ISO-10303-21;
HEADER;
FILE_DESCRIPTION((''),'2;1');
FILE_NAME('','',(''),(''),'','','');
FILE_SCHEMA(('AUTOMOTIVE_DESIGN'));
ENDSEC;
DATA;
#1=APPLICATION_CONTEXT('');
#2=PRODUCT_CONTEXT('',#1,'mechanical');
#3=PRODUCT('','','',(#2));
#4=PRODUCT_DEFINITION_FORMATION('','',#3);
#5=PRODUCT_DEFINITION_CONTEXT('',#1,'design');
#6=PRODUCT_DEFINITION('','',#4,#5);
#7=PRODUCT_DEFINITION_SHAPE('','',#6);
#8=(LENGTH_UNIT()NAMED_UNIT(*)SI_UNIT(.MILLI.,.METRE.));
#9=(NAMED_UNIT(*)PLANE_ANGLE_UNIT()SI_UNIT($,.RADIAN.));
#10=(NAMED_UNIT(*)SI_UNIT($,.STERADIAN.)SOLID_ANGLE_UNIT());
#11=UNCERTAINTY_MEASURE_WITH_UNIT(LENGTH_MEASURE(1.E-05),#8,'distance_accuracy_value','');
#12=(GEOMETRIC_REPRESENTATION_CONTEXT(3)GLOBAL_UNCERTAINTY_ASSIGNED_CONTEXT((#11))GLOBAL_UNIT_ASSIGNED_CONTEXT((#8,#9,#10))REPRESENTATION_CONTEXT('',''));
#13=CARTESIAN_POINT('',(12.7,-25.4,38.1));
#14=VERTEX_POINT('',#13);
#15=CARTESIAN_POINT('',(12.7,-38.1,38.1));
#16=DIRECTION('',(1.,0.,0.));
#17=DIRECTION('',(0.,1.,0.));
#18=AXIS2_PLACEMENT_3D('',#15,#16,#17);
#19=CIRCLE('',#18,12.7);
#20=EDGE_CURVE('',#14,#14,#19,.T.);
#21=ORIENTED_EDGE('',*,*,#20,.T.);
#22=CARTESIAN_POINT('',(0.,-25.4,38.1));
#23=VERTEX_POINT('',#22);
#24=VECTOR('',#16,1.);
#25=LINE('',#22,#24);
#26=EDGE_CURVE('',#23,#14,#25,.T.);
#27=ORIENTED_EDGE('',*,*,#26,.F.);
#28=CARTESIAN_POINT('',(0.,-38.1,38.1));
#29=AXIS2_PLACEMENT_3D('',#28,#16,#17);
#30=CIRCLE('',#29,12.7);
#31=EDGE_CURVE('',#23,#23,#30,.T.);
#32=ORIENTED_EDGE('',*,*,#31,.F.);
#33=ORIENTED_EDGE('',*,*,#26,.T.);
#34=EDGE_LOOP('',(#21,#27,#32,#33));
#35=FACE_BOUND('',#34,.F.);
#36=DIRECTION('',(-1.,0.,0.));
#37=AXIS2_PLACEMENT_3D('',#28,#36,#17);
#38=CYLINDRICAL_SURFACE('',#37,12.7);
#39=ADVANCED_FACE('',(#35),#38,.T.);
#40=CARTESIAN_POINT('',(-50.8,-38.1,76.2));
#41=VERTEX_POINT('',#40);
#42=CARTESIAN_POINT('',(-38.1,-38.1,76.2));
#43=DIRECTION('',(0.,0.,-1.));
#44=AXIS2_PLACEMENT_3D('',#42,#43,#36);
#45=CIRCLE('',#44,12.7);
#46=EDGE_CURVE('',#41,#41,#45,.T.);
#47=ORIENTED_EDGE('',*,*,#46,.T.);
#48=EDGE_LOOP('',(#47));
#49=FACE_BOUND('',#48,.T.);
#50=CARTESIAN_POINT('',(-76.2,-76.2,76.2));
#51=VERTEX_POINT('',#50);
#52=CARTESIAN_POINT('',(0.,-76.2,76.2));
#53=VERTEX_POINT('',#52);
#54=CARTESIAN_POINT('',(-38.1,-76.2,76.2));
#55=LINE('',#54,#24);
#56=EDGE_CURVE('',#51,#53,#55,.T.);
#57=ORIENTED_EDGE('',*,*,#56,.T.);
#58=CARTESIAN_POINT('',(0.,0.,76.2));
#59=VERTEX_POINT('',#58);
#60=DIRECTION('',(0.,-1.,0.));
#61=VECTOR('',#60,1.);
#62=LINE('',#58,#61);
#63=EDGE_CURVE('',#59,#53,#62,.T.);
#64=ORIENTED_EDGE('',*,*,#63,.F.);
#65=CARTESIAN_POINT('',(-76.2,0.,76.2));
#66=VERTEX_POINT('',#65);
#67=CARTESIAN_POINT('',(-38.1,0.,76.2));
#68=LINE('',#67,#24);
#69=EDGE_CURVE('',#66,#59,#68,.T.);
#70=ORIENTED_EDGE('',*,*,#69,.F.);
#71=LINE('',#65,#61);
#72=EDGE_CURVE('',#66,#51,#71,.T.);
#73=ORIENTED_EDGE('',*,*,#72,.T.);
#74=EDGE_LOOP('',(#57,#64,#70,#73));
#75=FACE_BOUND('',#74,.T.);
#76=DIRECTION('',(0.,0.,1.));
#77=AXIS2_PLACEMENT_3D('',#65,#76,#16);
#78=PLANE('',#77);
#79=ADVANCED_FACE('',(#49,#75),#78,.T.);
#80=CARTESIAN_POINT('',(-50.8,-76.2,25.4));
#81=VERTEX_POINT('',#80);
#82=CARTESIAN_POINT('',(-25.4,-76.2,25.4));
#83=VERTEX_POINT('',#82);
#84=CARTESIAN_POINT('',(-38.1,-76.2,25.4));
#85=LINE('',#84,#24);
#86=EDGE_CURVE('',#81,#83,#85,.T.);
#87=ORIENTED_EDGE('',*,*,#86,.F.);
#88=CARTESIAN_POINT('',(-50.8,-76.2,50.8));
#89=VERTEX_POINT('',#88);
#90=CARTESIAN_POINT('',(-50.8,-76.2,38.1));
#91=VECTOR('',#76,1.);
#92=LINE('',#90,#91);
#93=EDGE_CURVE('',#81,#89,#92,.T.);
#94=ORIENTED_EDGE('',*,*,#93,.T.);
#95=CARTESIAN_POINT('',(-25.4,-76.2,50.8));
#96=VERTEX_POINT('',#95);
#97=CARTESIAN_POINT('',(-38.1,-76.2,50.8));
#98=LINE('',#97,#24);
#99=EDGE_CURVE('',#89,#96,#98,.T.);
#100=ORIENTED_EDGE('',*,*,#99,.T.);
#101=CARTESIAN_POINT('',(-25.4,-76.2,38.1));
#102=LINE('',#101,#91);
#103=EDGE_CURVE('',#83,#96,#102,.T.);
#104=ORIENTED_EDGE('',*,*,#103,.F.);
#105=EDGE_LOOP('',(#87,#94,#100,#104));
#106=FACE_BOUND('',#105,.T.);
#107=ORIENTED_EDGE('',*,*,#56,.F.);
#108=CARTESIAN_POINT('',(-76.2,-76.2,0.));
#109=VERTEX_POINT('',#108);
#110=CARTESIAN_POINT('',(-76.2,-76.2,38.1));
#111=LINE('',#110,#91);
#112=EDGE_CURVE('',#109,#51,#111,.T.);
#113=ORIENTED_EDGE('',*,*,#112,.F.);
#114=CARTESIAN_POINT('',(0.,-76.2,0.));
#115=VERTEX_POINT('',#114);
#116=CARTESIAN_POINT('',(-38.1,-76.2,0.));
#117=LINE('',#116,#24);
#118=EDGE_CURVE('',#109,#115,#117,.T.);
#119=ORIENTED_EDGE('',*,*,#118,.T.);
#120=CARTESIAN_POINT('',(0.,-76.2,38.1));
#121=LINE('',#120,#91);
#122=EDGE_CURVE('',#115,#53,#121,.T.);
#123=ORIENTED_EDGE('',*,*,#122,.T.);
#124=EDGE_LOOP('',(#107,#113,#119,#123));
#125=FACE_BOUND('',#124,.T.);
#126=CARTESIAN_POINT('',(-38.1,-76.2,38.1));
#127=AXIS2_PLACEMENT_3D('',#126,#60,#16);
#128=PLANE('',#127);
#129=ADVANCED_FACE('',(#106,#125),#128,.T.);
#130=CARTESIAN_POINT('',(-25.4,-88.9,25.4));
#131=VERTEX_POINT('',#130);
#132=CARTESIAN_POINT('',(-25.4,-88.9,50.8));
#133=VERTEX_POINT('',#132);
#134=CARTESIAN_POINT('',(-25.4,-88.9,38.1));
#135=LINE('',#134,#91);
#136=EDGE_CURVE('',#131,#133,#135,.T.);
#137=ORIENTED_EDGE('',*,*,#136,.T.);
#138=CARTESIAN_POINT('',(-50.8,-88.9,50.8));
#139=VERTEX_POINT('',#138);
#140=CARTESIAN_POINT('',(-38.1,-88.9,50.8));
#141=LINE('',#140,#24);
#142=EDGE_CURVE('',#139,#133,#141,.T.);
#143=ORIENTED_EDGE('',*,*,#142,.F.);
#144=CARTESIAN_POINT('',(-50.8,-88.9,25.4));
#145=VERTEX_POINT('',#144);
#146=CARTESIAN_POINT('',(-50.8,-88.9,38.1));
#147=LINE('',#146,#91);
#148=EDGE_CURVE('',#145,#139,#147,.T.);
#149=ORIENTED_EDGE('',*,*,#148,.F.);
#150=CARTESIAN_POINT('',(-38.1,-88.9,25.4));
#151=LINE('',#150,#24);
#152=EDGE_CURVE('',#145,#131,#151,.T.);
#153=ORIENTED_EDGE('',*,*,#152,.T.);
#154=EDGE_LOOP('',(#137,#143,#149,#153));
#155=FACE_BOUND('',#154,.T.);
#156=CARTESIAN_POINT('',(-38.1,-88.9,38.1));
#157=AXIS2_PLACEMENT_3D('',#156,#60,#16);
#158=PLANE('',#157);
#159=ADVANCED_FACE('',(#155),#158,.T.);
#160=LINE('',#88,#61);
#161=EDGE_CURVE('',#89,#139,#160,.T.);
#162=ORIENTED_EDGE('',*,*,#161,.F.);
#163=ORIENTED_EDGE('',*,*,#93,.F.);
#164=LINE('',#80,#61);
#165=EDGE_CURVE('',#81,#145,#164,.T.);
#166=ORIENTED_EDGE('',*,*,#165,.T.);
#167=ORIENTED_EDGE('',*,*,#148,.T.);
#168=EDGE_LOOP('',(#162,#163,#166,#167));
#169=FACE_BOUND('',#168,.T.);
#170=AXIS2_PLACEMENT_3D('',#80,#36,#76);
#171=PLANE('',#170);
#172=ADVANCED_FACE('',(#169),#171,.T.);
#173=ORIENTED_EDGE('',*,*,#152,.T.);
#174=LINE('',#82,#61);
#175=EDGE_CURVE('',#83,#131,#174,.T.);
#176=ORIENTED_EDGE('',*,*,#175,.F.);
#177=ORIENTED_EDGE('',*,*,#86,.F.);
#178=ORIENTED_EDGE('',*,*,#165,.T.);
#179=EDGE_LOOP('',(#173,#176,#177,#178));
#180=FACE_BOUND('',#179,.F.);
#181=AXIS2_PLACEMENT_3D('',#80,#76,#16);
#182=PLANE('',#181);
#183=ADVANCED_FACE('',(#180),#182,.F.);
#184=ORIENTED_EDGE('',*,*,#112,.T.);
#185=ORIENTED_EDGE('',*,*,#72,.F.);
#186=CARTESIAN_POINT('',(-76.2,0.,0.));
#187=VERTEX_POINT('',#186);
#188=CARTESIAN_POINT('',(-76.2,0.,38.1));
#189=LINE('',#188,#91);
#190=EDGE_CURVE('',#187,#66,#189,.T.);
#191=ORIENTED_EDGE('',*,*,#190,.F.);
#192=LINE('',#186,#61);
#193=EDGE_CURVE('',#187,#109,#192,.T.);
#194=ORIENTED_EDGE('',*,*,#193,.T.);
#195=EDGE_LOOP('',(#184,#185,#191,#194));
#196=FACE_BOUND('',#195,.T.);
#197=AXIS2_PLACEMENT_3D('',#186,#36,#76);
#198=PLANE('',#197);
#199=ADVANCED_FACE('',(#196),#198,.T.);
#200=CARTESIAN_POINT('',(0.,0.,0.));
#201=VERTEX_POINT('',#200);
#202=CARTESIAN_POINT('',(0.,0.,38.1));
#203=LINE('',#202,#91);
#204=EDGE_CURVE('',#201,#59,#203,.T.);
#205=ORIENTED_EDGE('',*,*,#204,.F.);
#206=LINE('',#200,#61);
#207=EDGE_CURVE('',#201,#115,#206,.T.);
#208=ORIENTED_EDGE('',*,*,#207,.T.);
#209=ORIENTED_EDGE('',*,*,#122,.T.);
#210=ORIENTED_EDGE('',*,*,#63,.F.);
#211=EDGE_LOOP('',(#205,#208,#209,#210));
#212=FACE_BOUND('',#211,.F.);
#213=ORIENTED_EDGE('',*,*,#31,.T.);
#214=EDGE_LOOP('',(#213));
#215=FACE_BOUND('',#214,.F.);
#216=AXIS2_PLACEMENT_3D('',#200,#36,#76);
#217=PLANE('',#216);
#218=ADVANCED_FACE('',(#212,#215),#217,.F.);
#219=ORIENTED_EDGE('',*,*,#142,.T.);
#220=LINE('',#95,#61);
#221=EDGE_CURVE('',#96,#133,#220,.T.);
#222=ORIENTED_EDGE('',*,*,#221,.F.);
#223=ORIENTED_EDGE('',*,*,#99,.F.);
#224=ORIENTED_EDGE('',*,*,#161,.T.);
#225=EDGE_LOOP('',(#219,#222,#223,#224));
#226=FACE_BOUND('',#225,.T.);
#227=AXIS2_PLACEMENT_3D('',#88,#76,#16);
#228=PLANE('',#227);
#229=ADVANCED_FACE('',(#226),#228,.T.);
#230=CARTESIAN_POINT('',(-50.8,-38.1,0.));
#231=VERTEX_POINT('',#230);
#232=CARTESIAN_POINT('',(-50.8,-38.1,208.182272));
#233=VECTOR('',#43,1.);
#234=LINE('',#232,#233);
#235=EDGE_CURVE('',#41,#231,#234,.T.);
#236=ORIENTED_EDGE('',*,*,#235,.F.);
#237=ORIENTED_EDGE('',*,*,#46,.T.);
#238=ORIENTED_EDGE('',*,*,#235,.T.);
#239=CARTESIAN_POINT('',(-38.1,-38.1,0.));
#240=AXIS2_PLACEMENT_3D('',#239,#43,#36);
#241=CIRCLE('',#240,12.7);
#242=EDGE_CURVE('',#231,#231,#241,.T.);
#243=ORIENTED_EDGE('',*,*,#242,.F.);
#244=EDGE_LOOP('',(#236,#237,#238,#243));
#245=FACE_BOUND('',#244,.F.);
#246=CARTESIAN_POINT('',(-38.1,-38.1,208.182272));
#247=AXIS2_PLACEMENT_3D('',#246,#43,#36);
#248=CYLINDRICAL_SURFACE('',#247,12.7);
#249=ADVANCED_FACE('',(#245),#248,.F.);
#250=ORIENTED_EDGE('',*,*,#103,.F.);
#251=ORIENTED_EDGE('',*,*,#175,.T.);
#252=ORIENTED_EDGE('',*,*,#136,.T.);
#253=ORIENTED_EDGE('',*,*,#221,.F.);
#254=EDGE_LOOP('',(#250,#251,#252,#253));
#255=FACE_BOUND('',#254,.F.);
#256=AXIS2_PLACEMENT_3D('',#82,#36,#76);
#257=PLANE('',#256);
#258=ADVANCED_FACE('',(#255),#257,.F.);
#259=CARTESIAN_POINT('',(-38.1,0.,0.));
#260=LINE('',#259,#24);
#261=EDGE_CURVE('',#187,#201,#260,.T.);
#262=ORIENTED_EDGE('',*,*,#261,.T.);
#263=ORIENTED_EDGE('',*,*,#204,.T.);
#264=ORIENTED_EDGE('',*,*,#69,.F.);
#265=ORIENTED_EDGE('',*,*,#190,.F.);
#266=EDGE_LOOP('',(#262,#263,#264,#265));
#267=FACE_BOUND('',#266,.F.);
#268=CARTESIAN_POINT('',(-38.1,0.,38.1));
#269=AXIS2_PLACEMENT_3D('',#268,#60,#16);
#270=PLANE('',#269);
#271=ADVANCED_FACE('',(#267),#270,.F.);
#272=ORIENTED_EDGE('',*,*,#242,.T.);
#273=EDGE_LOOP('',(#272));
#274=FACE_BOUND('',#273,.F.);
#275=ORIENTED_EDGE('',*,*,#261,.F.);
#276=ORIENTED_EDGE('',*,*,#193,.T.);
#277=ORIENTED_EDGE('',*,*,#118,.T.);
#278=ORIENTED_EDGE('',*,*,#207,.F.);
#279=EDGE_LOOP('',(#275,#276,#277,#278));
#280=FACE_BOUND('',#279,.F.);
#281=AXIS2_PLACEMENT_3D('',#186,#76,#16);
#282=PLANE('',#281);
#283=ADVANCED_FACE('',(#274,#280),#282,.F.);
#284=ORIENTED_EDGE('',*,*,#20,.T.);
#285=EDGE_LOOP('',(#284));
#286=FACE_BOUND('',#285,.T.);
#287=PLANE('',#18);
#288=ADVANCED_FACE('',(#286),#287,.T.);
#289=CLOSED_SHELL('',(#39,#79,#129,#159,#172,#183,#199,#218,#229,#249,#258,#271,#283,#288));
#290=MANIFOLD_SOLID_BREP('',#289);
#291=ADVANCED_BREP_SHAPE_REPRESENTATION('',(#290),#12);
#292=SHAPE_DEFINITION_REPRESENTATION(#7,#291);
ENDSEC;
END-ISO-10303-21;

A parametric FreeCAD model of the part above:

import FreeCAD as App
import Part
import Sketcher

V = App.Vector
Q = App.Units.Quantity

doc = App.newDocument("Part")
body = doc.addObject("PartDesign::Body", "Body")

# Sketch on XZ plane
sketch1 = doc.addObject("Sketcher::SketchObject", "Sketch")
body.addObject(sketch1)
sketch1.AttachmentSupport = (doc.XZ_Plane, [""])
sketch1.MapMode = "FlatFace"
sketch1.addGeometry(Part.LineSegment(V(-76.2, 76.2, 0), V(-76.2, 0, 0)), False)
sketch1.addGeometry(Part.LineSegment(V(-76.2, 0, 0), V(0, 0, 0)), False)
sketch1.addGeometry(Part.LineSegment(V(0, 0, 0), V(0, 76.2, 0)), False)
sketch1.addGeometry(Part.LineSegment(V(0, 76.2, 0), V(-76.2, 76.2, 0)), False)
sketch1.addConstraint(Sketcher.Constraint("Coincident", 0, 2, 1, 1))
sketch1.addConstraint(Sketcher.Constraint("Coincident", 1, 2, 2, 1))
sketch1.addConstraint(Sketcher.Constraint("Coincident", 2, 2, 3, 1))
sketch1.addConstraint(Sketcher.Constraint("Coincident", 3, 2, 0, 1))
sketch1.addConstraint(Sketcher.Constraint("Vertical", 0))
sketch1.addConstraint(Sketcher.Constraint("Horizontal", 1))
sketch1.addConstraint(Sketcher.Constraint("Vertical", 2))
sketch1.addConstraint(Sketcher.Constraint("Horizontal", 3))
sketch1.addConstraint(Sketcher.Constraint("Coincident", 1, 2, -1, 1))
sketch1.addConstraint(Sketcher.Constraint("Equal", 3, 0))
sketch1.addConstraint(Sketcher.Constraint("DistanceX", 1, 1, 1, 2, Q("3 in")))
pad1 = doc.addObject("PartDesign::Pad", "Pad")
body.addObject(pad1)
pad1.Profile = sketch1
pad1.Length = Q("3 in")

# Sketch on XY plane
sketch2 = doc.addObject("Sketcher::SketchObject", "Sketch001")
body.addObject(sketch2)
sketch2.AttachmentSupport = (doc.XY_Plane, [""])
sketch2.MapMode = "FlatFace"
sketch2.AttachmentOffset = App.Placement(V(0, 0, 3 * 25.4), App.Rotation())
sketch2.addGeometry(Part.Circle(V(-38.1, -38.1, 0), V(0, 0, 1), 12.7), False)
sketch2.addConstraint(Sketcher.Constraint("Diameter", 0, Q("1 in")))
sketch2.addConstraint(Sketcher.Constraint("DistanceX", 0, 3, -1, 1, Q("1.5 in")))
sketch2.addConstraint(Sketcher.Constraint("DistanceY", 0, 3, -1, 1, Q("1.5 in")))
doc.recompute()
hole = doc.addObject("PartDesign::Hole", "Hole")
body.addObject(hole)
hole.Profile = sketch2
hole.ThreadType = "None"
hole.Diameter = Q("1 in")
hole.DepthType = "ThroughAll"

# Sketch on XZ plane
sketch3 = doc.addObject("Sketcher::SketchObject", "Sketch002")
body.addObject(sketch3)
sketch3.AttachmentSupport = (doc.XZ_Plane, [""])
sketch3.MapMode = "FlatFace"
sketch3.AttachmentOffset = App.Placement(V(0, 0, 3 * 25.4), App.Rotation())
sketch3.addGeometry(Part.LineSegment(V(-50.8, 50.8, 0), V(-50.8, 25.4, 0)), False)
sketch3.addGeometry(Part.LineSegment(V(-50.8, 25.4, 0), V(-25.4, 25.4, 0)), False)
sketch3.addGeometry(Part.LineSegment(V(-25.4, 25.4, 0), V(-25.4, 50.8, 0)), False)
sketch3.addGeometry(Part.LineSegment(V(-25.4, 50.8, 0), V(-50.8, 50.8, 0)), False)
sketch3.addConstraint(Sketcher.Constraint("Coincident", 0, 2, 1, 1))
sketch3.addConstraint(Sketcher.Constraint("Coincident", 1, 2, 2, 1))
sketch3.addConstraint(Sketcher.Constraint("Coincident", 2, 2, 3, 1))
sketch3.addConstraint(Sketcher.Constraint("Coincident", 3, 2, 0, 1))
sketch3.addConstraint(Sketcher.Constraint("Vertical", 0))
sketch3.addConstraint(Sketcher.Constraint("Horizontal", 1))
sketch3.addConstraint(Sketcher.Constraint("Vertical", 2))
sketch3.addConstraint(Sketcher.Constraint("Horizontal", 3))
sketch3.addConstraint(Sketcher.Constraint("Equal", 3, 0))
sketch3.addConstraint(Sketcher.Constraint("DistanceX", 1, 1, 1, 2, Q("1 in")))
sketch3.addConstraint(Sketcher.Constraint("DistanceX", 0, 2, -1, 1, Q("2 in")))
sketch3.addConstraint(Sketcher.Constraint("DistanceY", -1, 1, 0, 2, Q("1 in")))
pad2 = doc.addObject("PartDesign::Pad", "Pad001")
body.addObject(pad2)
pad2.Profile = sketch3
pad2.Length = Q("0.5 in")

# Sketch on YZ plane
sketch4 = doc.addObject("Sketcher::SketchObject", "Sketch003")
body.addObject(sketch4)
sketch4.AttachmentSupport = (doc.YZ_Plane, [""])
sketch4.MapMode = "FlatFace"
sketch4.addGeometry(Part.Circle(V(-38.1, 38.1, 0), V(0, 0, 1), 12.7), False)
sketch4.addConstraint(Sketcher.Constraint("Diameter", 0, Q("1 in")))
sketch4.addConstraint(Sketcher.Constraint("DistanceX", 0, 3, -1, 1, Q("1.5 in")))
sketch4.addConstraint(Sketcher.Constraint("DistanceY", -1, 1, 0, 3, Q("1.5 in")))
pad3 = doc.addObject("PartDesign::Pad", "Pad002")
body.addObject(pad3)
pad3.Profile = sketch4
pad3.Length = Q("0.5 in")

doc.recompute()
